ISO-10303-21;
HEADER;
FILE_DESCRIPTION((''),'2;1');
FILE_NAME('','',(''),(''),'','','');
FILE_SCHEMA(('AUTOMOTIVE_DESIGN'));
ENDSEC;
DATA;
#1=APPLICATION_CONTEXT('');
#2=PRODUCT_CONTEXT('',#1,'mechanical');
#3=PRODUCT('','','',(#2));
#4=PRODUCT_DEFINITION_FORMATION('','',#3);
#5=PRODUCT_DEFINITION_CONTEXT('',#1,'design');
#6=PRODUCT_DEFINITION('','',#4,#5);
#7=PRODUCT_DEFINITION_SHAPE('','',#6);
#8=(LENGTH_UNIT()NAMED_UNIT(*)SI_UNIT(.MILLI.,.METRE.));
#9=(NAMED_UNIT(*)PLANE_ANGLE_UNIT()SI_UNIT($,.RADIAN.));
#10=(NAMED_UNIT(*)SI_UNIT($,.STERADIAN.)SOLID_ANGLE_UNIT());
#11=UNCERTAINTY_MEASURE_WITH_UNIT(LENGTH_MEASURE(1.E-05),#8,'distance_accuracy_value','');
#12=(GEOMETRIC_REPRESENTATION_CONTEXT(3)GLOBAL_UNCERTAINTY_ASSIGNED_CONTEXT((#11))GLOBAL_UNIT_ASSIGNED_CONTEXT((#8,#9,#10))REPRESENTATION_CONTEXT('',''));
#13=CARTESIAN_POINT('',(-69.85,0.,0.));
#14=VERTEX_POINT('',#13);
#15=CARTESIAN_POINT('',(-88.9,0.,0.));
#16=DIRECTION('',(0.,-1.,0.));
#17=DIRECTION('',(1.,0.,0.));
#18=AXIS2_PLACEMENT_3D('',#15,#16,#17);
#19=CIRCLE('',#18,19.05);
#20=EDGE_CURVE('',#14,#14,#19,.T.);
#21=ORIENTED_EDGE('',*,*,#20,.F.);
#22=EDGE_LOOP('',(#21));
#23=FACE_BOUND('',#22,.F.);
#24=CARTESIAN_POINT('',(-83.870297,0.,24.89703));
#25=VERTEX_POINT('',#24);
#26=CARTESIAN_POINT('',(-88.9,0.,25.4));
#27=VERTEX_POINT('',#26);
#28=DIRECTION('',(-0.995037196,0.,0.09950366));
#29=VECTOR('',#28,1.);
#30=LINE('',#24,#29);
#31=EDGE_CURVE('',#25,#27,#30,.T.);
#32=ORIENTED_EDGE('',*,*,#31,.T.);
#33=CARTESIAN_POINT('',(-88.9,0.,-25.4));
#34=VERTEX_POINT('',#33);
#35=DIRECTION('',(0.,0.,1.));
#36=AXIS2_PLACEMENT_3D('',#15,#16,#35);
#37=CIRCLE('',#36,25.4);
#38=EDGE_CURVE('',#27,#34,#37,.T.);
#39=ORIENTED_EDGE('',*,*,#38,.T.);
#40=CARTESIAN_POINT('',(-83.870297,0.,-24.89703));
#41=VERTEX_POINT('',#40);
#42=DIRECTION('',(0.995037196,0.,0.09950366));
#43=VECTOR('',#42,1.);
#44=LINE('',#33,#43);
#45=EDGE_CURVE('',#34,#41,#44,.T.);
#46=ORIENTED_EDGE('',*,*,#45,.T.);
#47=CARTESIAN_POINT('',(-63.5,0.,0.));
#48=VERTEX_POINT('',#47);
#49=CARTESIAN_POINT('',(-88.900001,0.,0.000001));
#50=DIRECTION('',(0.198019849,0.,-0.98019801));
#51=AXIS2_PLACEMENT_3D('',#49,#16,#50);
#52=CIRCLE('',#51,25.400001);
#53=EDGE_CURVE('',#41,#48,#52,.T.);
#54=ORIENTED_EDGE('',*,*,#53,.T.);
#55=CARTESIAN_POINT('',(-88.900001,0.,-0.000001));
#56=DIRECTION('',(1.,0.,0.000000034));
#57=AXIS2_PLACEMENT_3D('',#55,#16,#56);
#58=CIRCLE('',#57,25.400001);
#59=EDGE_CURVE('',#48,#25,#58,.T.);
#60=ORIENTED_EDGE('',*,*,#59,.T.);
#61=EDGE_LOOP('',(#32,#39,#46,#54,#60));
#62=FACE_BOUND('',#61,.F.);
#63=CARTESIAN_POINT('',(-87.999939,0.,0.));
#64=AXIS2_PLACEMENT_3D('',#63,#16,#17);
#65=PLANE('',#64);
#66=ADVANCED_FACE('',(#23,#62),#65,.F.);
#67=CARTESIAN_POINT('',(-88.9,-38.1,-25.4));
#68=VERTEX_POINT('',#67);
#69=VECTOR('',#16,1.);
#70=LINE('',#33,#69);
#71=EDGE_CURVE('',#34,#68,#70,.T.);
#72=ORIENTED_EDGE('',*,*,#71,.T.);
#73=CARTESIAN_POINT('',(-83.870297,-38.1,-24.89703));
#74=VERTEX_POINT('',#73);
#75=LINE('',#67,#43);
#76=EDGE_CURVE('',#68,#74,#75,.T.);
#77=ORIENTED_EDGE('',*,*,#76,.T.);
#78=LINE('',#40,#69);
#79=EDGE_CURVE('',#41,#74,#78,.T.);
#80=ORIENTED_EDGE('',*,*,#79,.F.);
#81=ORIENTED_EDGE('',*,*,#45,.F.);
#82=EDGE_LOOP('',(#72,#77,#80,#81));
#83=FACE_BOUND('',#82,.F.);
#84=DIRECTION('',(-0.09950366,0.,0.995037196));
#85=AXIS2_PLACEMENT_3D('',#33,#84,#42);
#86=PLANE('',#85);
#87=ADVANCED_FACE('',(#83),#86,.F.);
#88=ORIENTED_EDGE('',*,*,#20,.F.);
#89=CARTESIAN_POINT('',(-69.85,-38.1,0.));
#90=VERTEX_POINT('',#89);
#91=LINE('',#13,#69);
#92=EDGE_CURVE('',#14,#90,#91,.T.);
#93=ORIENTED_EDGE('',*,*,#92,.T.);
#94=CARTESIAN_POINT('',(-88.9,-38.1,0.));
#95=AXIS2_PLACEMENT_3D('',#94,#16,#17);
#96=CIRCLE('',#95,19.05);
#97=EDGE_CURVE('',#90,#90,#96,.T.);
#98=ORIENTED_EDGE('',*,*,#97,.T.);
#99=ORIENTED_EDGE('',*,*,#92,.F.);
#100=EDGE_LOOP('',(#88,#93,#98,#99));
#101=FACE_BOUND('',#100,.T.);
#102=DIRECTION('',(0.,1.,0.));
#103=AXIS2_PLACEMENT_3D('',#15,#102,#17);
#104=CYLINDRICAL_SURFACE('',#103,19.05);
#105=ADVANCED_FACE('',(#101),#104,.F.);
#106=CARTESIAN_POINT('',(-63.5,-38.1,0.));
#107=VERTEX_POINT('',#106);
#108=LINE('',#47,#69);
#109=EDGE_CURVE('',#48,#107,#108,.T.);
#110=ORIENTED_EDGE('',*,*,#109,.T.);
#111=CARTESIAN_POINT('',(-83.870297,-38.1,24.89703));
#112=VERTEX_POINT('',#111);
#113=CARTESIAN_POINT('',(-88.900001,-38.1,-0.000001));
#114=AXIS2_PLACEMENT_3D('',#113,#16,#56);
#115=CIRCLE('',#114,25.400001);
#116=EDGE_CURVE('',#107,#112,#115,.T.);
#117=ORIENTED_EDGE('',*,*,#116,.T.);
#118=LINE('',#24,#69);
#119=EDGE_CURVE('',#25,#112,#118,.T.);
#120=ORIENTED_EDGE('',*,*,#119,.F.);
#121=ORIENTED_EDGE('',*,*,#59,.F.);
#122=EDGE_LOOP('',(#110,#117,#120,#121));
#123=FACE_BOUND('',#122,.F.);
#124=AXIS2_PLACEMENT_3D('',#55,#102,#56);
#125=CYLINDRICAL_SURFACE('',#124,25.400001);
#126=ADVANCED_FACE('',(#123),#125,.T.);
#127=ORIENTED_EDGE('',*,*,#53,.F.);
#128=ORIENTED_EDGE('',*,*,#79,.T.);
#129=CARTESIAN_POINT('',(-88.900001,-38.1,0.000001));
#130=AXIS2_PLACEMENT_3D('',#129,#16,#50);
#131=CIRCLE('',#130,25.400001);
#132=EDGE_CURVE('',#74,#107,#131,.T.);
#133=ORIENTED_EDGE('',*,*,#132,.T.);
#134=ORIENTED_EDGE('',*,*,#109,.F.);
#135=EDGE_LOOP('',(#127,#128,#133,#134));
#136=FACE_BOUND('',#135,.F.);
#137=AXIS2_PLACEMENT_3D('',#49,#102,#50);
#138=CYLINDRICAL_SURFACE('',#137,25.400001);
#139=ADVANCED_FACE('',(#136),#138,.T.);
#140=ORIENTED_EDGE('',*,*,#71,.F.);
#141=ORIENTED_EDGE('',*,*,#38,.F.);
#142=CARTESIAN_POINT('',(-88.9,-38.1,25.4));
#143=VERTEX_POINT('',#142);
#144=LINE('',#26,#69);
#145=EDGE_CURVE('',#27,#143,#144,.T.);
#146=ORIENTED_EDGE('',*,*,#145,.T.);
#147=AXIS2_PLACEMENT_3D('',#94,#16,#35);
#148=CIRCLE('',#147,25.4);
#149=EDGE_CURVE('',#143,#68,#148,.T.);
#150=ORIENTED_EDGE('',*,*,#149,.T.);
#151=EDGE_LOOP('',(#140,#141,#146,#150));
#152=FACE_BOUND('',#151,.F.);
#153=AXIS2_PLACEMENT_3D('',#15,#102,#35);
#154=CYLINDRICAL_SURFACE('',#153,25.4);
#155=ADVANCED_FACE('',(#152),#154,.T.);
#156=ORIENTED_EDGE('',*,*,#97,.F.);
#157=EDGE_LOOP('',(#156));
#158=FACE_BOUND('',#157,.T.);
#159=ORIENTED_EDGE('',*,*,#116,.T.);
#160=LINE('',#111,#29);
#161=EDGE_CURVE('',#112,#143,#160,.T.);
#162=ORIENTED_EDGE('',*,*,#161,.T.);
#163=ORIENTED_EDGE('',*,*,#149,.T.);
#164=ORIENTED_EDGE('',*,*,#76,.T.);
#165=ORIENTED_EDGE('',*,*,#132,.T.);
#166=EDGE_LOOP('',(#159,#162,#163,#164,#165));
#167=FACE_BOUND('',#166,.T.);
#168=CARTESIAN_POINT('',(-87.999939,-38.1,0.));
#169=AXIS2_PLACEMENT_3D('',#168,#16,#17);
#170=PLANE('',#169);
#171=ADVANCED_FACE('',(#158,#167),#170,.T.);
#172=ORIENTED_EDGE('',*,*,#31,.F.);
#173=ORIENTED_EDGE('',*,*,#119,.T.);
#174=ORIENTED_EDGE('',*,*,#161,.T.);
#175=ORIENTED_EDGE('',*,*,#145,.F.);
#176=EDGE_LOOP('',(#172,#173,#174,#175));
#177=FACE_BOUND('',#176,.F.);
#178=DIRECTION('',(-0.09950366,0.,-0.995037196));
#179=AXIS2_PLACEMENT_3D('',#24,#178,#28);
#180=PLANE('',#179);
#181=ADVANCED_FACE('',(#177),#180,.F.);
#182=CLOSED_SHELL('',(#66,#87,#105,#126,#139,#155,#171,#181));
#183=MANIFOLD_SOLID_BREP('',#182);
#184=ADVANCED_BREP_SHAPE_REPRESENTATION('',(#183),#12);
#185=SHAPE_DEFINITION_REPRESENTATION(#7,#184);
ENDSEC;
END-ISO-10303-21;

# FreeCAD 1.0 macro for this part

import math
import FreeCAD as App
import Part
import Sketcher
from FreeCAD import Vector
Q = App.Units.Quantity

doc = App.newDocument("Part")
body = doc.addObject("PartDesign::Body", "Body")

# Sketch on XZ plane
sketch1 = body.newObject("Sketcher::SketchObject", "Sketch")
sketch1.AttachmentSupport = (doc.getObject("XZ_Plane"), [""])
sketch1.MapMode = "FlatFace"
sketch1.addGeometry(Part.LineSegment(Vector(-84, 25, 0), Vector(-89, 25, 0)), False)
sketch1.addGeometry(Part.ArcOfCircle(Part.Circle(Vector(-89, 0, 0), Vector(0, 0, 1), 25), math.radians(90), math.radians(270)), False)
sketch1.addGeometry(Part.LineSegment(Vector(-89, -25, 0), Vector(-84, -25, 0)), False)
sketch1.addGeometry(Part.ArcOfCircle(Part.Circle(Vector(-89, 0, 0), Vector(0, 0, 1), 25), math.radians(-79), math.radians(0)), False)
sketch1.addGeometry(Part.ArcOfCircle(Part.Circle(Vector(-89, 0, 0), Vector(0, 0, 1), 25), math.radians(0), math.radians(79)), False)
sketch1.addGeometry(Part.Circle(Vector(-89, 0, 0), Vector(0, 0, 1), 19), False)
sketch1.addConstraint(Sketcher.Constraint("Coincident", 0, 2, 1, 1))
sketch1.addConstraint(Sketcher.Constraint("Coincident", 1, 2, 2, 1))
sketch1.addConstraint(Sketcher.Constraint("Coincident", 2, 2, 3, 1))
sketch1.addConstraint(Sketcher.Constraint("Tangent", 3, 2, 4, 1))
sketch1.addConstraint(Sketcher.Constraint("Coincident", 4, 2, 0, 1))
sketch1.addConstraint(Sketcher.Constraint("Coincident", 3, 3, 1, 3))
sketch1.addConstraint(Sketcher.Constraint("Coincident", 5, 3, 1, 3))
sketch1.addConstraint(Sketcher.Constraint("Equal", 1, 3))
sketch1.addConstraint(Sketcher.Constraint("Equal", 3, 4))
sketch1.addConstraint(Sketcher.Constraint("Symmetric", 0, 2, 1, 2, -1))
sketch1.addConstraint(Sketcher.Constraint("PointOnObject", 3, 2, -1))
sketch1.addConstraint(Sketcher.Constraint("Vertical", 5, 3, 0, 2))
sketch1.addConstraint(Sketcher.Constraint("Vertical", 2, 2, 4, 2))
sketch1.addConstraint(Sketcher.Constraint("Radius", 1, Q("1 in")))
sketch1.addConstraint(Sketcher.Constraint("Diameter", 5, Q("1.5 in")))
sketch1.addConstraint(Sketcher.Constraint("DistanceX", 1, 3, -1, 1, Q("3.5 in")))
sketch1.addConstraint(Sketcher.Constraint("Distance", 0, Q("5.054789 mm")))
pad1 = body.newObject("PartDesign::Pad", "Pad")
pad1.Profile = sketch1
pad1.Length = Q("1.5 in")

doc.recompute()
